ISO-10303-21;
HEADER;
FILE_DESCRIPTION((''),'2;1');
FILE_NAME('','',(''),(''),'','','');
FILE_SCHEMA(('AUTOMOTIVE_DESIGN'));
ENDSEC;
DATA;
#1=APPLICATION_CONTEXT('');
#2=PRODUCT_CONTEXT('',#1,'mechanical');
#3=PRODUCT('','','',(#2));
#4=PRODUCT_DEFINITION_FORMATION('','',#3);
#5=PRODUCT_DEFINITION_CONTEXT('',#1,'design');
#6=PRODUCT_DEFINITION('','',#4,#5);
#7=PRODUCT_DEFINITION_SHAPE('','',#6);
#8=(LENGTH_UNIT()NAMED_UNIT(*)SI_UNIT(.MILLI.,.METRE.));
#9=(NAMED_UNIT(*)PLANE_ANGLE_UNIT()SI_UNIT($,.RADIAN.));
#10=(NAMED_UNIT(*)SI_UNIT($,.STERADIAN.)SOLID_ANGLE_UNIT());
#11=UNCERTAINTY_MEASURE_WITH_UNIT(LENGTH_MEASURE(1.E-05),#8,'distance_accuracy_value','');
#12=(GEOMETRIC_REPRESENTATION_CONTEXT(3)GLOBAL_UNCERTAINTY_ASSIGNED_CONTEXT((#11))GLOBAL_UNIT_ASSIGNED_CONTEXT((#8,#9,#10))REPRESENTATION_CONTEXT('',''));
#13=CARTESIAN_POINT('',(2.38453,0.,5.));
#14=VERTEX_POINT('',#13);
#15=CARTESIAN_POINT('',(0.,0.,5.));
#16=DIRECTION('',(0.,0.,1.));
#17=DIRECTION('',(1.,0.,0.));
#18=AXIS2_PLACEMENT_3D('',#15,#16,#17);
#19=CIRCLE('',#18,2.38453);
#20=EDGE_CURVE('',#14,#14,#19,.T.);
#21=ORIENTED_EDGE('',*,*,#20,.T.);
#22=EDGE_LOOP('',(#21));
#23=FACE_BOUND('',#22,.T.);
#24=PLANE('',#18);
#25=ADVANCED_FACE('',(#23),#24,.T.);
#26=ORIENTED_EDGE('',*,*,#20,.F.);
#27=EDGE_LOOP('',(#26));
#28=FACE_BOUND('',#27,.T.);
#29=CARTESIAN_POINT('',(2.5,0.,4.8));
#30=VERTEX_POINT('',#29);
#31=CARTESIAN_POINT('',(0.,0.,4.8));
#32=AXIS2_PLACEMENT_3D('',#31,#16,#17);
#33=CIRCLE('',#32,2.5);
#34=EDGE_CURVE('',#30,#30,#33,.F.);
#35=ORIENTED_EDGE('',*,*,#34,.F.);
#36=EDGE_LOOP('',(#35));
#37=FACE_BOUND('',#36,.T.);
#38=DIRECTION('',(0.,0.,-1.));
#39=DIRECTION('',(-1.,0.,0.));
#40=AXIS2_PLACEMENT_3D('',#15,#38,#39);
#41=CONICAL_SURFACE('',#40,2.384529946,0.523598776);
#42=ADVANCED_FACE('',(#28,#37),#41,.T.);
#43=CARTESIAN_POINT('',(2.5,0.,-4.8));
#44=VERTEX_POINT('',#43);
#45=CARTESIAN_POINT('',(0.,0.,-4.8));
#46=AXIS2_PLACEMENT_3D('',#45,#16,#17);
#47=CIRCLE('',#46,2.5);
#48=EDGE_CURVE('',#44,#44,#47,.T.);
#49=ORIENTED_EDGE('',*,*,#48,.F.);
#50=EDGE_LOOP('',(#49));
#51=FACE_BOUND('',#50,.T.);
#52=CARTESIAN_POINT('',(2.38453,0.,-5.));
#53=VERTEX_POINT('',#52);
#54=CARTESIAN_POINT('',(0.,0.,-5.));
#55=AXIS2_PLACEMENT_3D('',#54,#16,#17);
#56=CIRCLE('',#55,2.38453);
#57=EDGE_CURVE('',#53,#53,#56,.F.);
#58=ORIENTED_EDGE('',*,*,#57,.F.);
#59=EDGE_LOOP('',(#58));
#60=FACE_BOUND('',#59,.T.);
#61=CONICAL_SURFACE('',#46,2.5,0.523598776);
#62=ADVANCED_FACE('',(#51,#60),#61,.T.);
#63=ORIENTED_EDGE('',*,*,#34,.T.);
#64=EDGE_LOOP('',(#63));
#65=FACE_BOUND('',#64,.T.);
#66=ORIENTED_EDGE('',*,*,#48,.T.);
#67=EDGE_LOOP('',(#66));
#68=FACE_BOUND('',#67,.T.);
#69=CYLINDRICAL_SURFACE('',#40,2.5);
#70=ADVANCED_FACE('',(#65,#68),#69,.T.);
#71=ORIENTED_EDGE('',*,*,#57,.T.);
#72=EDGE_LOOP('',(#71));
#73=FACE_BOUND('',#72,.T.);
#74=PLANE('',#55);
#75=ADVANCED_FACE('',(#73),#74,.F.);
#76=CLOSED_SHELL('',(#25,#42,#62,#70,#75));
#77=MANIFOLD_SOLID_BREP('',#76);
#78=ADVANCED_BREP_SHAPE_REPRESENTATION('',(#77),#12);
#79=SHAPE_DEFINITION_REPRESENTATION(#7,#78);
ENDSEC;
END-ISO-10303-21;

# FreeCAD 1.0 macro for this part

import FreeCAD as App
import Part
import Sketcher
Q = App.Units.Quantity


def edges_at(feature, points):
    """Names of the edges that pass closest to the given points."""
    edges = feature.Shape.Edges
    near = lambda p: min(range(len(edges)), key=lambda i: edges[i].distToShape(Part.Vertex(*p))[0])
    return sorted({f"Edge{near(p) + 1}" for p in points})

doc = App.newDocument("Part")
body = doc.addObject("PartDesign::Body", "Body")

# Sketch on XY plane
sketch1 = body.newObject("Sketcher::SketchObject", "Sketch")
sketch1.AttachmentSupport = (doc.getObject("XY_Plane"), [""])
sketch1.MapMode = "FlatFace"
sketch1.addGeometry(Part.Circle(App.Vector(0, 0, 0), App.Vector(0, 0, 1), 2.5), False)
sketch1.addConstraint([
    Sketcher.Constraint("Coincident", 0, 3, -1, 1),
    Sketcher.Constraint("Diameter", 0, Q("5 mm")),
])
pad1 = body.newObject("PartDesign::Pad", "Pad")
pad1.Profile = sketch1
pad1.Length = 10
pad1.Midplane = True
doc.recompute()

chamfer = body.newObject("PartDesign::Chamfer", "Chamfer")
chamfer.Base = (pad1, edges_at(pad1, [(-2.5, 0, -5), (-2.5, 0, 5)]))
chamfer.ChamferType = "Two distances"
chamfer.Size = 0.2
chamfer.Size2 = 0.11547

doc.recompute()
